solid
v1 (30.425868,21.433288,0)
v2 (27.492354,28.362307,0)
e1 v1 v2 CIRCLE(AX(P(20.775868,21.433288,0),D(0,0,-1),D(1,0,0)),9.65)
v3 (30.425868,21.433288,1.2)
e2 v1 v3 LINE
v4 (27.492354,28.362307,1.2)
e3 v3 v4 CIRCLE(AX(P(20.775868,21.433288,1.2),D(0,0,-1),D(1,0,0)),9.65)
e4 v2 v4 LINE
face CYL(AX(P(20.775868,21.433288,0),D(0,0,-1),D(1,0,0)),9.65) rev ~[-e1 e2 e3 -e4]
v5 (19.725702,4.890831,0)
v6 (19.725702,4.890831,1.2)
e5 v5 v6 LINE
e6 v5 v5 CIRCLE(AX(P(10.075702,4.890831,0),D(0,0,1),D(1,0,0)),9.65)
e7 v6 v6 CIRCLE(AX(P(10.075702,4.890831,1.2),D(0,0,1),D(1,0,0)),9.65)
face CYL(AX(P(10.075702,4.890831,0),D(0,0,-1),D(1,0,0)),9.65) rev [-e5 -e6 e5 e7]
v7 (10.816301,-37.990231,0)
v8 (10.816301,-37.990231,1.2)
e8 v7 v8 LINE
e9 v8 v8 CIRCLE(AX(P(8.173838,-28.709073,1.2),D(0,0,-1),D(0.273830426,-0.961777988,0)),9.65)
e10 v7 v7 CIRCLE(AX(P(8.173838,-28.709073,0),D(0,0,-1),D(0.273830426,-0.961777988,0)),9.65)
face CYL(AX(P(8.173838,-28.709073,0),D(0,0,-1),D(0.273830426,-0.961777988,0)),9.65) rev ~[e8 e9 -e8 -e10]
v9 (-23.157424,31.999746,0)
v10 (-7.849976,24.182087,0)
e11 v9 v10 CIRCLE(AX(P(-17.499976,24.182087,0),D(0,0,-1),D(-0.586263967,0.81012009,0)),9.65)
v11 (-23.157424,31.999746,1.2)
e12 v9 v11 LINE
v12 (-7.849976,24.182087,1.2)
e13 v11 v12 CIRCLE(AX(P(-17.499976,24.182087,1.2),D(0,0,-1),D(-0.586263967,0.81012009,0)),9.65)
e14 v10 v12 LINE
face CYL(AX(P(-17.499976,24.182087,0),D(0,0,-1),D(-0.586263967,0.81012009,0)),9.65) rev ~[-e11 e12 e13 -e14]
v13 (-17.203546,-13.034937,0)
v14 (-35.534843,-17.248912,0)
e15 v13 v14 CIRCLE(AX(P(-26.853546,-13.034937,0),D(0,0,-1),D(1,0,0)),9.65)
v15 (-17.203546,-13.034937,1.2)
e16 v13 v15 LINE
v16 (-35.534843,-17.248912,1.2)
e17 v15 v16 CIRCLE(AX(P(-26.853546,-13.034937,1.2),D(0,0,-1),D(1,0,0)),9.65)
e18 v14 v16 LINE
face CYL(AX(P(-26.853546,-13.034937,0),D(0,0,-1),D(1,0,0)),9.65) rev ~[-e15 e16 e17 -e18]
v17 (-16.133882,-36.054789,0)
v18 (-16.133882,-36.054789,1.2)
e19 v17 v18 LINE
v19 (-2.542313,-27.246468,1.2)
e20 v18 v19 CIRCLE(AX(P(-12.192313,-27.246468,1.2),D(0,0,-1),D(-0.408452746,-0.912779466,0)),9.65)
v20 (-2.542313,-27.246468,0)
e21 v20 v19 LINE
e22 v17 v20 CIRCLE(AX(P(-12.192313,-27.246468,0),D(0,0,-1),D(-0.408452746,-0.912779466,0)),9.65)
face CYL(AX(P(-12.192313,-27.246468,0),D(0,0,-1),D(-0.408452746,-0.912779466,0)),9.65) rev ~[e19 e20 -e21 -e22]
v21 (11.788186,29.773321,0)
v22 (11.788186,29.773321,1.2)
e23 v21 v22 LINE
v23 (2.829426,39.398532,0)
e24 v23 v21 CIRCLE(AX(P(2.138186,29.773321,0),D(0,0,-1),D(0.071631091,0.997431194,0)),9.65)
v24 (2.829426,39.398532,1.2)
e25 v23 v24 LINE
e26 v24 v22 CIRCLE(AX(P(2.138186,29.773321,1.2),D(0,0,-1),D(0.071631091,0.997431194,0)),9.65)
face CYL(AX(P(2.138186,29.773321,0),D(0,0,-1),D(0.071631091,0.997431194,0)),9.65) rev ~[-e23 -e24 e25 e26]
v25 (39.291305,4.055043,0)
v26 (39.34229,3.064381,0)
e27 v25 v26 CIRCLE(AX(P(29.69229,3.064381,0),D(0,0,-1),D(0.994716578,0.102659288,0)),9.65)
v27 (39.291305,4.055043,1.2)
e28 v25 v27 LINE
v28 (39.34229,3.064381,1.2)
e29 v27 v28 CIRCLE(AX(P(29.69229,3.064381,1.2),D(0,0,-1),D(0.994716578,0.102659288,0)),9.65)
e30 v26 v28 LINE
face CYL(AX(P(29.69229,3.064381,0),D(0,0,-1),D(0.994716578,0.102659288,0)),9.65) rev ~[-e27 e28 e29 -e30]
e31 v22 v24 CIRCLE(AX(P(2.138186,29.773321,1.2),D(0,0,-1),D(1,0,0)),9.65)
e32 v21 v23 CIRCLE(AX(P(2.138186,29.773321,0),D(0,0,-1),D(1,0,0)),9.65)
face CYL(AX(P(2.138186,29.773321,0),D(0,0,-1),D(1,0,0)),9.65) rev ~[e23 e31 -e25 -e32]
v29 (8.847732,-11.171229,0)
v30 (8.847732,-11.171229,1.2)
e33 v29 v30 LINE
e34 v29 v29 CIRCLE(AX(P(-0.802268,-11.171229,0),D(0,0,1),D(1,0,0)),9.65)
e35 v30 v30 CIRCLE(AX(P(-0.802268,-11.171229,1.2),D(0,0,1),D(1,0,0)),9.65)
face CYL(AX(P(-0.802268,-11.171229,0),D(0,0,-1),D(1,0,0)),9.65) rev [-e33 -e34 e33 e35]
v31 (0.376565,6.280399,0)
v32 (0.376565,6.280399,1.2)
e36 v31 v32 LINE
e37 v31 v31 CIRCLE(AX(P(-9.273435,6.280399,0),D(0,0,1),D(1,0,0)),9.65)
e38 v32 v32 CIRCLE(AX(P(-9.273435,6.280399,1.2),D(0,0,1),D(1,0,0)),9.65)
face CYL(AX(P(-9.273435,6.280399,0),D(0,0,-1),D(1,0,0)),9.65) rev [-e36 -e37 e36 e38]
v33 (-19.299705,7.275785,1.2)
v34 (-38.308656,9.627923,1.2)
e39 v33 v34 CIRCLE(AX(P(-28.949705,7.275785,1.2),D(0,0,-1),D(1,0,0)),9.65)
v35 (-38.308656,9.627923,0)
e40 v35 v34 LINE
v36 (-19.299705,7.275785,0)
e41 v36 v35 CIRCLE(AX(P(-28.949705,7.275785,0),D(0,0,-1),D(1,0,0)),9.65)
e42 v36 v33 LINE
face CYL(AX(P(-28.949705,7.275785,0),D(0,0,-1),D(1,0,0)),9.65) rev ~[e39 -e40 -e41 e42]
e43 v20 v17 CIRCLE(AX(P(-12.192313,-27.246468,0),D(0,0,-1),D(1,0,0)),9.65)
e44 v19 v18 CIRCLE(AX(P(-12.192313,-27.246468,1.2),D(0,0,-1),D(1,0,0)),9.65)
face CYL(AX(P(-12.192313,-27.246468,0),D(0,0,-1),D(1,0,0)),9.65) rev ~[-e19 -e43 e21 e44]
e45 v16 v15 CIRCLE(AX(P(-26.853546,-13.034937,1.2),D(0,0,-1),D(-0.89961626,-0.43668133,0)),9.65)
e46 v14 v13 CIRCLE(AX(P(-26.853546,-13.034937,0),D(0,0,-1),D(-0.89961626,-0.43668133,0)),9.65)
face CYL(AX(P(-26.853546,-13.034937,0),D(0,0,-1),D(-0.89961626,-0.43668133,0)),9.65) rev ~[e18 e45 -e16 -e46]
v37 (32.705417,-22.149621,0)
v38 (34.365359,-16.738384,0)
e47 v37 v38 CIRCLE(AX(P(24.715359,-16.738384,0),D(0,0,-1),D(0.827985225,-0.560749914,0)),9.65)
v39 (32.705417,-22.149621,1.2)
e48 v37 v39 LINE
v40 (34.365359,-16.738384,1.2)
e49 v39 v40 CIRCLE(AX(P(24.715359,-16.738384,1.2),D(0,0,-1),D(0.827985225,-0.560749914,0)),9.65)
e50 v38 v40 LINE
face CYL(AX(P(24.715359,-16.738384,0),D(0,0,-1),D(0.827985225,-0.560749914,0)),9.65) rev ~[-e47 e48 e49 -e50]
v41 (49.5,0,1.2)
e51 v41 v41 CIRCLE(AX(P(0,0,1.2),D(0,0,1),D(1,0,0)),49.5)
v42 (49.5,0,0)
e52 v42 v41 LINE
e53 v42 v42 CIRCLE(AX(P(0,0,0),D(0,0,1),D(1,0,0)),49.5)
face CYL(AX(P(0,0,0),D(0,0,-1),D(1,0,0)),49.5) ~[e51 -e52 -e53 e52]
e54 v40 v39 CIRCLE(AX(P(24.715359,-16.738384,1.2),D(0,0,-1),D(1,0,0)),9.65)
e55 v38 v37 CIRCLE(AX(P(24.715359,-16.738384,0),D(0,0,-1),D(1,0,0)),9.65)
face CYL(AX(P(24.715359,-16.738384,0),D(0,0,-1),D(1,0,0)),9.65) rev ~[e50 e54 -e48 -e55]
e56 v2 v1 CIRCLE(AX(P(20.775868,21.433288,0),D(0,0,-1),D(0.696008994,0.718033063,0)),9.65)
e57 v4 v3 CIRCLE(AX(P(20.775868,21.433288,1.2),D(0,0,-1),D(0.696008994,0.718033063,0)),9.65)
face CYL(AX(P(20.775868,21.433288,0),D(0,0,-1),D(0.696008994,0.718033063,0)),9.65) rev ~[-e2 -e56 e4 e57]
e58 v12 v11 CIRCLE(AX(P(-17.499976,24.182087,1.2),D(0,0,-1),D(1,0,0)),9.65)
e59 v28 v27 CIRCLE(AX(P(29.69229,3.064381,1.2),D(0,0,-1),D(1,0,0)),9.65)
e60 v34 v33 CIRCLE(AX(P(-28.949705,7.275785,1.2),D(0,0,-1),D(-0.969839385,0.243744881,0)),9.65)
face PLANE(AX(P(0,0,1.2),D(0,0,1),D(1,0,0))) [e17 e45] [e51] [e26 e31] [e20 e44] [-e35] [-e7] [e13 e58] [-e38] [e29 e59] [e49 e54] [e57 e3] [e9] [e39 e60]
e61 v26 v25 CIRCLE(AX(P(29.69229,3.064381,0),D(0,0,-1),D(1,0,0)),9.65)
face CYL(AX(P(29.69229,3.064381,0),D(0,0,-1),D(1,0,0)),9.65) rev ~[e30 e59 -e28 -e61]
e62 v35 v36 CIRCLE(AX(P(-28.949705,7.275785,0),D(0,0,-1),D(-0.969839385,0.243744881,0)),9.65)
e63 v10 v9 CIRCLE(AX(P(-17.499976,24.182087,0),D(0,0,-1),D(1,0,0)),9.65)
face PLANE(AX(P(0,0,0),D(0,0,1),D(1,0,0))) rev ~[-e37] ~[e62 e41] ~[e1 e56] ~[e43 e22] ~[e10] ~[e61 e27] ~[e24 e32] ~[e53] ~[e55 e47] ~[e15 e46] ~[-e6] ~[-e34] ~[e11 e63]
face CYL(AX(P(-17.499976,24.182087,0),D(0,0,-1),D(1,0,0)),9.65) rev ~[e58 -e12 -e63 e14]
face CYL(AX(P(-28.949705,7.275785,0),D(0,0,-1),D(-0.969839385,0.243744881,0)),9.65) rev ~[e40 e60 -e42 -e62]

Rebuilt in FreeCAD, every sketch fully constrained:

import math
import FreeCAD as App
import Part
import Sketcher

doc = App.newDocument("Part")
body = doc.addObject("PartDesign::Body", "Body")

# Sketch on XY plane
sketch1 = body.newObject("Sketcher::SketchObject", "Sketch")
sketch1.AttachmentSupport = (doc.getObject("XY_Plane"), [""])
sketch1.MapMode = "FlatFace"
sketch1.addGeometry(Part.Circle(App.Vector(0, 0, 0), App.Vector(0, 0, 1), 49.5), False)
sketch1.addGeometry(Part.ArcOfCircle(Part.Circle(App.Vector(-12.192313, -27.246468, 0), App.Vector(0, 0, 1), 9.65), math.radians(0), math.radians(245.892324)), False)
sketch1.addGeometry(Part.ArcOfCircle(Part.Circle(App.Vector(-12.192313, -27.246468, 0), App.Vector(0, 0, 1), 9.65), math.radians(-114.107676), math.radians(0)), False)
sketch1.addGeometry(Part.ArcOfCircle(Part.Circle(App.Vector(-26.853546, -13.034937, 0), App.Vector(0, 0, 1), 9.65), math.radians(0), math.radians(205.892328)), False)
sketch1.addGeometry(Part.ArcOfCircle(Part.Circle(App.Vector(-26.853546, -13.034937, 0), App.Vector(0, 0, 1), 9.65), math.radians(-154.107672), math.radians(0)), False)
sketch1.addGeometry(Part.Circle(App.Vector(-0.802268, -11.171229, 0), App.Vector(0, 0, 1), 9.65), False)
sketch1.addGeometry(Part.Circle(App.Vector(8.173838, -28.709073, 0), App.Vector(0, 0, 1), 9.65), False)
sketch1.addGeometry(Part.ArcOfCircle(Part.Circle(App.Vector(24.715359, -16.738384, 0), App.Vector(0, 0, 1), 9.65), math.radians(0), math.radians(325.892325)), False)
sketch1.addGeometry(Part.ArcOfCircle(Part.Circle(App.Vector(24.715359, -16.738384, 0), App.Vector(0, 0, 1), 9.65), math.radians(-34.107675), math.radians(0)), False)
sketch1.addGeometry(Part.ArcOfCircle(Part.Circle(App.Vector(-28.949705, 7.275785, 0), App.Vector(0, 0, 1), 9.65), math.radians(0), math.radians(165.892328)), False)
sketch1.addGeometry(Part.ArcOfCircle(Part.Circle(App.Vector(-28.949705, 7.275785, 0), App.Vector(0, 0, 1), 9.65), math.radians(165.892328), math.radians(360)), False)
sketch1.addGeometry(Part.Circle(App.Vector(-9.273435, 6.280399, 0), App.Vector(0, 0, 1), 9.65), False)
sketch1.addGeometry(Part.ArcOfCircle(Part.Circle(App.Vector(-17.499976, 24.182087, 0), App.Vector(0, 0, 1), 9.65), math.radians(0), math.radians(125.892334)), False)
sketch1.addGeometry(Part.ArcOfCircle(Part.Circle(App.Vector(-17.499976, 24.182087, 0), App.Vector(0, 0, 1), 9.65), math.radians(125.892334), math.radians(360)), False)
sketch1.addGeometry(Part.Circle(App.Vector(10.075702, 4.890831, 0), App.Vector(0, 0, 1), 9.65), False)
sketch1.addGeometry(Part.ArcOfCircle(Part.Circle(App.Vector(29.69229, 3.064381, 0), App.Vector(0, 0, 1), 9.65), math.radians(0), math.radians(5.892325)), False)
sketch1.addGeometry(Part.ArcOfCircle(Part.Circle(App.Vector(29.69229, 3.064381, 0), App.Vector(0, 0, 1), 9.65), math.radians(5.892325), math.radians(360)), False)
sketch1.addGeometry(Part.ArcOfCircle(Part.Circle(App.Vector(2.138186, 29.773321, 0), App.Vector(0, 0, 1), 9.65), math.radians(0), math.radians(85.892323)), False)
sketch1.addGeometry(Part.ArcOfCircle(Part.Circle(App.Vector(2.138186, 29.773321, 0), App.Vector(0, 0, 1), 9.65), math.radians(85.892323), math.radians(360)), False)
sketch1.addGeometry(Part.ArcOfCircle(Part.Circle(App.Vector(20.775868, 21.433288, 0), App.Vector(0, 0, 1), 9.65), math.radians(0), math.radians(45.892324)), False)
sketch1.addGeometry(Part.ArcOfCircle(Part.Circle(App.Vector(20.775868, 21.433288, 0), App.Vector(0, 0, 1), 9.65), math.radians(45.892324), math.radians(360)), False)
sketch1.addConstraint(Sketcher.Constraint("Tangent", 1, 1, 2, 2))
sketch1.addConstraint(Sketcher.Constraint("Coincident", 2, 1, 1, 2))
sketch1.addConstraint(Sketcher.Constraint("Tangent", 3, 1, 4, 2))
sketch1.addConstraint(Sketcher.Constraint("Coincident", 4, 1, 3, 2))
sketch1.addConstraint(Sketcher.Constraint("Tangent", 7, 1, 8, 2))
sketch1.addConstraint(Sketcher.Constraint("Coincident", 8, 1, 7, 2))
sketch1.addConstraint(Sketcher.Constraint("Tangent", 9, 1, 10, 2))
sketch1.addConstraint(Sketcher.Constraint("Coincident", 10, 1, 9, 2))
sketch1.addConstraint(Sketcher.Constraint("Tangent", 12, 1, 13, 2))
sketch1.addConstraint(Sketcher.Constraint("Coincident", 13, 1, 12, 2))
sketch1.addConstraint(Sketcher.Constraint("Tangent", 15, 1, 16, 2))
sketch1.addConstraint(Sketcher.Constraint("Coincident", 16, 1, 15, 2))
sketch1.addConstraint(Sketcher.Constraint("Tangent", 17, 1, 18, 2))
sketch1.addConstraint(Sketcher.Constraint("Coincident", 18, 1, 17, 2))
sketch1.addConstraint(Sketcher.Constraint("Tangent", 19, 1, 20, 2))
sketch1.addConstraint(Sketcher.Constraint("Coincident", 20, 1, 19, 2))
sketch1.addConstraint(Sketcher.Constraint("Coincident", 0, 3, -1, 1))
sketch1.addConstraint(Sketcher.Constraint("Equal", 2, 3))
sketch1.addConstraint(Sketcher.Constraint("Equal", 4, 5))
sketch1.addConstraint(Sketcher.Constraint("Equal", 5, 6))
sketch1.addConstraint(Sketcher.Constraint("Equal", 6, 7))
sketch1.addConstraint(Sketcher.Constraint("Equal", 8, 9))
sketch1.addConstraint(Sketcher.Constraint("Equal", 10, 11))
sketch1.addConstraint(Sketcher.Constraint("Equal", 11, 12))
sketch1.addConstraint(Sketcher.Constraint("Equal", 13, 14))
sketch1.addConstraint(Sketcher.Constraint("Equal", 14, 15))
sketch1.addConstraint(Sketcher.Constraint("Equal", 16, 17))
sketch1.addConstraint(Sketcher.Constraint("Equal", 18, 19))
sketch1.addConstraint(Sketcher.Constraint("Horizontal", 2, 3, 1, 1))
sketch1.addConstraint(Sketcher.Constraint("Horizontal", 4, 3, 3, 1))
sketch1.addConstraint(Sketcher.Constraint("Horizontal", 8, 3, 7, 1))
sketch1.addConstraint(Sketcher.Constraint("Horizontal", 10, 3, 9, 1))
sketch1.addConstraint(Sketcher.Constraint("Horizontal", 13, 3, 12, 1))
sketch1.addConstraint(Sketcher.Constraint("Horizontal", 16, 3, 15, 1))
sketch1.addConstraint(Sketcher.Constraint("Horizontal", 18, 3, 17, 1))
sketch1.addConstraint(Sketcher.Constraint("Horizontal", 20, 3, 19, 1))
sketch1.addConstraint(Sketcher.Constraint("Diameter", 0, 99.0))
sketch1.addConstraint(Sketcher.Constraint("Diameter", 5, 19.3))
sketch1.addConstraint(Sketcher.Constraint("DistanceY", 8, 1, 16, 3, 25.214002))
sketch1.addConstraint(Sketcher.Constraint("DistanceY", -1, 1, 11, 3, 6.280399))
sketch1.addConstraint(Sketcher.Constraint("DistanceY", 9, 3, 12, 3, 16.906302))
sketch1.addConstraint(Sketcher.Constraint("DistanceY", 5, 3, -1, 1, 11.171229))
sketch1.addConstraint(Sketcher.Constraint("DistanceX", -1, 1, 7, 3, 24.715359))
sketch1.addConstraint(Sketcher.Constraint("DistanceY", -1, 1, 14, 3, 4.890831))
sketch1.addConstraint(Sketcher.Constraint("DistanceX", -1, 1, 15, 3, 29.69229))
sketch1.addConstraint(Sketcher.Constraint("DistanceY", -1, 1, 15, 3, 3.064381))
sketch1.addConstraint(Sketcher.Constraint("DistanceY", -1, 1, 17, 3, 29.773321))
sketch1.addConstraint(Sketcher.Constraint("DistanceY", 2, 1, -1, 1, 36.054789))
sketch1.addConstraint(Sketcher.Constraint("DistanceY", 4, 1, -1, 1, 17.248912))
sketch1.addConstraint(Sketcher.Constraint("DistanceY", 1, 3, 3, 3, 14.21153))
sketch1.addConstraint(Sketcher.Constraint("DistanceY", 1, 3, 5, 3, 16.075238))
sketch1.addConstraint(Sketcher.Constraint("DistanceX", 3, 3, 5, 3, 26.051278))
sketch1.addConstraint(Sketcher.Constraint("DistanceX", 1, 3, 6, 3, 20.366151))
sketch1.addConstraint(Sketcher.Constraint("DistanceX", 6, 3, 7, 3, 16.541522))
sketch1.addConstraint(Sketcher.Constraint("DistanceY", 6, 3, 7, 3, 11.970689))
sketch1.addConstraint(Sketcher.Constraint("DistanceX", 9, 3, 3, 3, 2.09616))
sketch1.addConstraint(Sketcher.Constraint("DistanceX", 9, 3, 11, 3, 19.676271))
sketch1.addConstraint(Sketcher.Constraint("DistanceX", 12, 3, 11, 3, 8.226542))
sketch1.addConstraint(Sketcher.Constraint("DistanceY", 11, 3, 12, 3, 17.901688))
sketch1.addConstraint(Sketcher.Constraint("DistanceX", 5, 3, 14, 3, 10.87797))
sketch1.addConstraint(Sketcher.Constraint("DistanceX", 11, 3, 17, 3, 11.411621))
sketch1.addConstraint(Sketcher.Constraint("DistanceX", 18, 3, 19, 3, 18.637681))
sketch1.addConstraint(Sketcher.Constraint("DistanceX", 4, 1, 1, 3, 23.342529))
sketch1.addConstraint(Sketcher.Constraint("DistanceX", 6, 3, 8, 1, 24.531579))
sketch1.addConstraint(Sketcher.Constraint("DistanceX", 10, 1, 9, 3, 9.35895))
sketch1.addConstraint(Sketcher.Constraint("DistanceY", 12, 3, 13, 1, 7.817659))
sketch1.addConstraint(Sketcher.Constraint("DistanceX", 18, 3, 18, 1, 0.69124))
sketch1.addConstraint(Sketcher.Constraint("DistanceY", 19, 1, 20, 1, 6.929019))
sketch1.addConstraint(Sketcher.Constraint("DistanceY", -1, 1, 19, 3, 21.433288))
sketch1.addConstraint(Sketcher.Constraint("DistanceX", -1, 1, 16, 1, 39.291305))
pad1 = body.newObject("PartDesign::Pad", "Pad")
pad1.Profile = sketch1
pad1.Length = 1.2

doc.recompute()
